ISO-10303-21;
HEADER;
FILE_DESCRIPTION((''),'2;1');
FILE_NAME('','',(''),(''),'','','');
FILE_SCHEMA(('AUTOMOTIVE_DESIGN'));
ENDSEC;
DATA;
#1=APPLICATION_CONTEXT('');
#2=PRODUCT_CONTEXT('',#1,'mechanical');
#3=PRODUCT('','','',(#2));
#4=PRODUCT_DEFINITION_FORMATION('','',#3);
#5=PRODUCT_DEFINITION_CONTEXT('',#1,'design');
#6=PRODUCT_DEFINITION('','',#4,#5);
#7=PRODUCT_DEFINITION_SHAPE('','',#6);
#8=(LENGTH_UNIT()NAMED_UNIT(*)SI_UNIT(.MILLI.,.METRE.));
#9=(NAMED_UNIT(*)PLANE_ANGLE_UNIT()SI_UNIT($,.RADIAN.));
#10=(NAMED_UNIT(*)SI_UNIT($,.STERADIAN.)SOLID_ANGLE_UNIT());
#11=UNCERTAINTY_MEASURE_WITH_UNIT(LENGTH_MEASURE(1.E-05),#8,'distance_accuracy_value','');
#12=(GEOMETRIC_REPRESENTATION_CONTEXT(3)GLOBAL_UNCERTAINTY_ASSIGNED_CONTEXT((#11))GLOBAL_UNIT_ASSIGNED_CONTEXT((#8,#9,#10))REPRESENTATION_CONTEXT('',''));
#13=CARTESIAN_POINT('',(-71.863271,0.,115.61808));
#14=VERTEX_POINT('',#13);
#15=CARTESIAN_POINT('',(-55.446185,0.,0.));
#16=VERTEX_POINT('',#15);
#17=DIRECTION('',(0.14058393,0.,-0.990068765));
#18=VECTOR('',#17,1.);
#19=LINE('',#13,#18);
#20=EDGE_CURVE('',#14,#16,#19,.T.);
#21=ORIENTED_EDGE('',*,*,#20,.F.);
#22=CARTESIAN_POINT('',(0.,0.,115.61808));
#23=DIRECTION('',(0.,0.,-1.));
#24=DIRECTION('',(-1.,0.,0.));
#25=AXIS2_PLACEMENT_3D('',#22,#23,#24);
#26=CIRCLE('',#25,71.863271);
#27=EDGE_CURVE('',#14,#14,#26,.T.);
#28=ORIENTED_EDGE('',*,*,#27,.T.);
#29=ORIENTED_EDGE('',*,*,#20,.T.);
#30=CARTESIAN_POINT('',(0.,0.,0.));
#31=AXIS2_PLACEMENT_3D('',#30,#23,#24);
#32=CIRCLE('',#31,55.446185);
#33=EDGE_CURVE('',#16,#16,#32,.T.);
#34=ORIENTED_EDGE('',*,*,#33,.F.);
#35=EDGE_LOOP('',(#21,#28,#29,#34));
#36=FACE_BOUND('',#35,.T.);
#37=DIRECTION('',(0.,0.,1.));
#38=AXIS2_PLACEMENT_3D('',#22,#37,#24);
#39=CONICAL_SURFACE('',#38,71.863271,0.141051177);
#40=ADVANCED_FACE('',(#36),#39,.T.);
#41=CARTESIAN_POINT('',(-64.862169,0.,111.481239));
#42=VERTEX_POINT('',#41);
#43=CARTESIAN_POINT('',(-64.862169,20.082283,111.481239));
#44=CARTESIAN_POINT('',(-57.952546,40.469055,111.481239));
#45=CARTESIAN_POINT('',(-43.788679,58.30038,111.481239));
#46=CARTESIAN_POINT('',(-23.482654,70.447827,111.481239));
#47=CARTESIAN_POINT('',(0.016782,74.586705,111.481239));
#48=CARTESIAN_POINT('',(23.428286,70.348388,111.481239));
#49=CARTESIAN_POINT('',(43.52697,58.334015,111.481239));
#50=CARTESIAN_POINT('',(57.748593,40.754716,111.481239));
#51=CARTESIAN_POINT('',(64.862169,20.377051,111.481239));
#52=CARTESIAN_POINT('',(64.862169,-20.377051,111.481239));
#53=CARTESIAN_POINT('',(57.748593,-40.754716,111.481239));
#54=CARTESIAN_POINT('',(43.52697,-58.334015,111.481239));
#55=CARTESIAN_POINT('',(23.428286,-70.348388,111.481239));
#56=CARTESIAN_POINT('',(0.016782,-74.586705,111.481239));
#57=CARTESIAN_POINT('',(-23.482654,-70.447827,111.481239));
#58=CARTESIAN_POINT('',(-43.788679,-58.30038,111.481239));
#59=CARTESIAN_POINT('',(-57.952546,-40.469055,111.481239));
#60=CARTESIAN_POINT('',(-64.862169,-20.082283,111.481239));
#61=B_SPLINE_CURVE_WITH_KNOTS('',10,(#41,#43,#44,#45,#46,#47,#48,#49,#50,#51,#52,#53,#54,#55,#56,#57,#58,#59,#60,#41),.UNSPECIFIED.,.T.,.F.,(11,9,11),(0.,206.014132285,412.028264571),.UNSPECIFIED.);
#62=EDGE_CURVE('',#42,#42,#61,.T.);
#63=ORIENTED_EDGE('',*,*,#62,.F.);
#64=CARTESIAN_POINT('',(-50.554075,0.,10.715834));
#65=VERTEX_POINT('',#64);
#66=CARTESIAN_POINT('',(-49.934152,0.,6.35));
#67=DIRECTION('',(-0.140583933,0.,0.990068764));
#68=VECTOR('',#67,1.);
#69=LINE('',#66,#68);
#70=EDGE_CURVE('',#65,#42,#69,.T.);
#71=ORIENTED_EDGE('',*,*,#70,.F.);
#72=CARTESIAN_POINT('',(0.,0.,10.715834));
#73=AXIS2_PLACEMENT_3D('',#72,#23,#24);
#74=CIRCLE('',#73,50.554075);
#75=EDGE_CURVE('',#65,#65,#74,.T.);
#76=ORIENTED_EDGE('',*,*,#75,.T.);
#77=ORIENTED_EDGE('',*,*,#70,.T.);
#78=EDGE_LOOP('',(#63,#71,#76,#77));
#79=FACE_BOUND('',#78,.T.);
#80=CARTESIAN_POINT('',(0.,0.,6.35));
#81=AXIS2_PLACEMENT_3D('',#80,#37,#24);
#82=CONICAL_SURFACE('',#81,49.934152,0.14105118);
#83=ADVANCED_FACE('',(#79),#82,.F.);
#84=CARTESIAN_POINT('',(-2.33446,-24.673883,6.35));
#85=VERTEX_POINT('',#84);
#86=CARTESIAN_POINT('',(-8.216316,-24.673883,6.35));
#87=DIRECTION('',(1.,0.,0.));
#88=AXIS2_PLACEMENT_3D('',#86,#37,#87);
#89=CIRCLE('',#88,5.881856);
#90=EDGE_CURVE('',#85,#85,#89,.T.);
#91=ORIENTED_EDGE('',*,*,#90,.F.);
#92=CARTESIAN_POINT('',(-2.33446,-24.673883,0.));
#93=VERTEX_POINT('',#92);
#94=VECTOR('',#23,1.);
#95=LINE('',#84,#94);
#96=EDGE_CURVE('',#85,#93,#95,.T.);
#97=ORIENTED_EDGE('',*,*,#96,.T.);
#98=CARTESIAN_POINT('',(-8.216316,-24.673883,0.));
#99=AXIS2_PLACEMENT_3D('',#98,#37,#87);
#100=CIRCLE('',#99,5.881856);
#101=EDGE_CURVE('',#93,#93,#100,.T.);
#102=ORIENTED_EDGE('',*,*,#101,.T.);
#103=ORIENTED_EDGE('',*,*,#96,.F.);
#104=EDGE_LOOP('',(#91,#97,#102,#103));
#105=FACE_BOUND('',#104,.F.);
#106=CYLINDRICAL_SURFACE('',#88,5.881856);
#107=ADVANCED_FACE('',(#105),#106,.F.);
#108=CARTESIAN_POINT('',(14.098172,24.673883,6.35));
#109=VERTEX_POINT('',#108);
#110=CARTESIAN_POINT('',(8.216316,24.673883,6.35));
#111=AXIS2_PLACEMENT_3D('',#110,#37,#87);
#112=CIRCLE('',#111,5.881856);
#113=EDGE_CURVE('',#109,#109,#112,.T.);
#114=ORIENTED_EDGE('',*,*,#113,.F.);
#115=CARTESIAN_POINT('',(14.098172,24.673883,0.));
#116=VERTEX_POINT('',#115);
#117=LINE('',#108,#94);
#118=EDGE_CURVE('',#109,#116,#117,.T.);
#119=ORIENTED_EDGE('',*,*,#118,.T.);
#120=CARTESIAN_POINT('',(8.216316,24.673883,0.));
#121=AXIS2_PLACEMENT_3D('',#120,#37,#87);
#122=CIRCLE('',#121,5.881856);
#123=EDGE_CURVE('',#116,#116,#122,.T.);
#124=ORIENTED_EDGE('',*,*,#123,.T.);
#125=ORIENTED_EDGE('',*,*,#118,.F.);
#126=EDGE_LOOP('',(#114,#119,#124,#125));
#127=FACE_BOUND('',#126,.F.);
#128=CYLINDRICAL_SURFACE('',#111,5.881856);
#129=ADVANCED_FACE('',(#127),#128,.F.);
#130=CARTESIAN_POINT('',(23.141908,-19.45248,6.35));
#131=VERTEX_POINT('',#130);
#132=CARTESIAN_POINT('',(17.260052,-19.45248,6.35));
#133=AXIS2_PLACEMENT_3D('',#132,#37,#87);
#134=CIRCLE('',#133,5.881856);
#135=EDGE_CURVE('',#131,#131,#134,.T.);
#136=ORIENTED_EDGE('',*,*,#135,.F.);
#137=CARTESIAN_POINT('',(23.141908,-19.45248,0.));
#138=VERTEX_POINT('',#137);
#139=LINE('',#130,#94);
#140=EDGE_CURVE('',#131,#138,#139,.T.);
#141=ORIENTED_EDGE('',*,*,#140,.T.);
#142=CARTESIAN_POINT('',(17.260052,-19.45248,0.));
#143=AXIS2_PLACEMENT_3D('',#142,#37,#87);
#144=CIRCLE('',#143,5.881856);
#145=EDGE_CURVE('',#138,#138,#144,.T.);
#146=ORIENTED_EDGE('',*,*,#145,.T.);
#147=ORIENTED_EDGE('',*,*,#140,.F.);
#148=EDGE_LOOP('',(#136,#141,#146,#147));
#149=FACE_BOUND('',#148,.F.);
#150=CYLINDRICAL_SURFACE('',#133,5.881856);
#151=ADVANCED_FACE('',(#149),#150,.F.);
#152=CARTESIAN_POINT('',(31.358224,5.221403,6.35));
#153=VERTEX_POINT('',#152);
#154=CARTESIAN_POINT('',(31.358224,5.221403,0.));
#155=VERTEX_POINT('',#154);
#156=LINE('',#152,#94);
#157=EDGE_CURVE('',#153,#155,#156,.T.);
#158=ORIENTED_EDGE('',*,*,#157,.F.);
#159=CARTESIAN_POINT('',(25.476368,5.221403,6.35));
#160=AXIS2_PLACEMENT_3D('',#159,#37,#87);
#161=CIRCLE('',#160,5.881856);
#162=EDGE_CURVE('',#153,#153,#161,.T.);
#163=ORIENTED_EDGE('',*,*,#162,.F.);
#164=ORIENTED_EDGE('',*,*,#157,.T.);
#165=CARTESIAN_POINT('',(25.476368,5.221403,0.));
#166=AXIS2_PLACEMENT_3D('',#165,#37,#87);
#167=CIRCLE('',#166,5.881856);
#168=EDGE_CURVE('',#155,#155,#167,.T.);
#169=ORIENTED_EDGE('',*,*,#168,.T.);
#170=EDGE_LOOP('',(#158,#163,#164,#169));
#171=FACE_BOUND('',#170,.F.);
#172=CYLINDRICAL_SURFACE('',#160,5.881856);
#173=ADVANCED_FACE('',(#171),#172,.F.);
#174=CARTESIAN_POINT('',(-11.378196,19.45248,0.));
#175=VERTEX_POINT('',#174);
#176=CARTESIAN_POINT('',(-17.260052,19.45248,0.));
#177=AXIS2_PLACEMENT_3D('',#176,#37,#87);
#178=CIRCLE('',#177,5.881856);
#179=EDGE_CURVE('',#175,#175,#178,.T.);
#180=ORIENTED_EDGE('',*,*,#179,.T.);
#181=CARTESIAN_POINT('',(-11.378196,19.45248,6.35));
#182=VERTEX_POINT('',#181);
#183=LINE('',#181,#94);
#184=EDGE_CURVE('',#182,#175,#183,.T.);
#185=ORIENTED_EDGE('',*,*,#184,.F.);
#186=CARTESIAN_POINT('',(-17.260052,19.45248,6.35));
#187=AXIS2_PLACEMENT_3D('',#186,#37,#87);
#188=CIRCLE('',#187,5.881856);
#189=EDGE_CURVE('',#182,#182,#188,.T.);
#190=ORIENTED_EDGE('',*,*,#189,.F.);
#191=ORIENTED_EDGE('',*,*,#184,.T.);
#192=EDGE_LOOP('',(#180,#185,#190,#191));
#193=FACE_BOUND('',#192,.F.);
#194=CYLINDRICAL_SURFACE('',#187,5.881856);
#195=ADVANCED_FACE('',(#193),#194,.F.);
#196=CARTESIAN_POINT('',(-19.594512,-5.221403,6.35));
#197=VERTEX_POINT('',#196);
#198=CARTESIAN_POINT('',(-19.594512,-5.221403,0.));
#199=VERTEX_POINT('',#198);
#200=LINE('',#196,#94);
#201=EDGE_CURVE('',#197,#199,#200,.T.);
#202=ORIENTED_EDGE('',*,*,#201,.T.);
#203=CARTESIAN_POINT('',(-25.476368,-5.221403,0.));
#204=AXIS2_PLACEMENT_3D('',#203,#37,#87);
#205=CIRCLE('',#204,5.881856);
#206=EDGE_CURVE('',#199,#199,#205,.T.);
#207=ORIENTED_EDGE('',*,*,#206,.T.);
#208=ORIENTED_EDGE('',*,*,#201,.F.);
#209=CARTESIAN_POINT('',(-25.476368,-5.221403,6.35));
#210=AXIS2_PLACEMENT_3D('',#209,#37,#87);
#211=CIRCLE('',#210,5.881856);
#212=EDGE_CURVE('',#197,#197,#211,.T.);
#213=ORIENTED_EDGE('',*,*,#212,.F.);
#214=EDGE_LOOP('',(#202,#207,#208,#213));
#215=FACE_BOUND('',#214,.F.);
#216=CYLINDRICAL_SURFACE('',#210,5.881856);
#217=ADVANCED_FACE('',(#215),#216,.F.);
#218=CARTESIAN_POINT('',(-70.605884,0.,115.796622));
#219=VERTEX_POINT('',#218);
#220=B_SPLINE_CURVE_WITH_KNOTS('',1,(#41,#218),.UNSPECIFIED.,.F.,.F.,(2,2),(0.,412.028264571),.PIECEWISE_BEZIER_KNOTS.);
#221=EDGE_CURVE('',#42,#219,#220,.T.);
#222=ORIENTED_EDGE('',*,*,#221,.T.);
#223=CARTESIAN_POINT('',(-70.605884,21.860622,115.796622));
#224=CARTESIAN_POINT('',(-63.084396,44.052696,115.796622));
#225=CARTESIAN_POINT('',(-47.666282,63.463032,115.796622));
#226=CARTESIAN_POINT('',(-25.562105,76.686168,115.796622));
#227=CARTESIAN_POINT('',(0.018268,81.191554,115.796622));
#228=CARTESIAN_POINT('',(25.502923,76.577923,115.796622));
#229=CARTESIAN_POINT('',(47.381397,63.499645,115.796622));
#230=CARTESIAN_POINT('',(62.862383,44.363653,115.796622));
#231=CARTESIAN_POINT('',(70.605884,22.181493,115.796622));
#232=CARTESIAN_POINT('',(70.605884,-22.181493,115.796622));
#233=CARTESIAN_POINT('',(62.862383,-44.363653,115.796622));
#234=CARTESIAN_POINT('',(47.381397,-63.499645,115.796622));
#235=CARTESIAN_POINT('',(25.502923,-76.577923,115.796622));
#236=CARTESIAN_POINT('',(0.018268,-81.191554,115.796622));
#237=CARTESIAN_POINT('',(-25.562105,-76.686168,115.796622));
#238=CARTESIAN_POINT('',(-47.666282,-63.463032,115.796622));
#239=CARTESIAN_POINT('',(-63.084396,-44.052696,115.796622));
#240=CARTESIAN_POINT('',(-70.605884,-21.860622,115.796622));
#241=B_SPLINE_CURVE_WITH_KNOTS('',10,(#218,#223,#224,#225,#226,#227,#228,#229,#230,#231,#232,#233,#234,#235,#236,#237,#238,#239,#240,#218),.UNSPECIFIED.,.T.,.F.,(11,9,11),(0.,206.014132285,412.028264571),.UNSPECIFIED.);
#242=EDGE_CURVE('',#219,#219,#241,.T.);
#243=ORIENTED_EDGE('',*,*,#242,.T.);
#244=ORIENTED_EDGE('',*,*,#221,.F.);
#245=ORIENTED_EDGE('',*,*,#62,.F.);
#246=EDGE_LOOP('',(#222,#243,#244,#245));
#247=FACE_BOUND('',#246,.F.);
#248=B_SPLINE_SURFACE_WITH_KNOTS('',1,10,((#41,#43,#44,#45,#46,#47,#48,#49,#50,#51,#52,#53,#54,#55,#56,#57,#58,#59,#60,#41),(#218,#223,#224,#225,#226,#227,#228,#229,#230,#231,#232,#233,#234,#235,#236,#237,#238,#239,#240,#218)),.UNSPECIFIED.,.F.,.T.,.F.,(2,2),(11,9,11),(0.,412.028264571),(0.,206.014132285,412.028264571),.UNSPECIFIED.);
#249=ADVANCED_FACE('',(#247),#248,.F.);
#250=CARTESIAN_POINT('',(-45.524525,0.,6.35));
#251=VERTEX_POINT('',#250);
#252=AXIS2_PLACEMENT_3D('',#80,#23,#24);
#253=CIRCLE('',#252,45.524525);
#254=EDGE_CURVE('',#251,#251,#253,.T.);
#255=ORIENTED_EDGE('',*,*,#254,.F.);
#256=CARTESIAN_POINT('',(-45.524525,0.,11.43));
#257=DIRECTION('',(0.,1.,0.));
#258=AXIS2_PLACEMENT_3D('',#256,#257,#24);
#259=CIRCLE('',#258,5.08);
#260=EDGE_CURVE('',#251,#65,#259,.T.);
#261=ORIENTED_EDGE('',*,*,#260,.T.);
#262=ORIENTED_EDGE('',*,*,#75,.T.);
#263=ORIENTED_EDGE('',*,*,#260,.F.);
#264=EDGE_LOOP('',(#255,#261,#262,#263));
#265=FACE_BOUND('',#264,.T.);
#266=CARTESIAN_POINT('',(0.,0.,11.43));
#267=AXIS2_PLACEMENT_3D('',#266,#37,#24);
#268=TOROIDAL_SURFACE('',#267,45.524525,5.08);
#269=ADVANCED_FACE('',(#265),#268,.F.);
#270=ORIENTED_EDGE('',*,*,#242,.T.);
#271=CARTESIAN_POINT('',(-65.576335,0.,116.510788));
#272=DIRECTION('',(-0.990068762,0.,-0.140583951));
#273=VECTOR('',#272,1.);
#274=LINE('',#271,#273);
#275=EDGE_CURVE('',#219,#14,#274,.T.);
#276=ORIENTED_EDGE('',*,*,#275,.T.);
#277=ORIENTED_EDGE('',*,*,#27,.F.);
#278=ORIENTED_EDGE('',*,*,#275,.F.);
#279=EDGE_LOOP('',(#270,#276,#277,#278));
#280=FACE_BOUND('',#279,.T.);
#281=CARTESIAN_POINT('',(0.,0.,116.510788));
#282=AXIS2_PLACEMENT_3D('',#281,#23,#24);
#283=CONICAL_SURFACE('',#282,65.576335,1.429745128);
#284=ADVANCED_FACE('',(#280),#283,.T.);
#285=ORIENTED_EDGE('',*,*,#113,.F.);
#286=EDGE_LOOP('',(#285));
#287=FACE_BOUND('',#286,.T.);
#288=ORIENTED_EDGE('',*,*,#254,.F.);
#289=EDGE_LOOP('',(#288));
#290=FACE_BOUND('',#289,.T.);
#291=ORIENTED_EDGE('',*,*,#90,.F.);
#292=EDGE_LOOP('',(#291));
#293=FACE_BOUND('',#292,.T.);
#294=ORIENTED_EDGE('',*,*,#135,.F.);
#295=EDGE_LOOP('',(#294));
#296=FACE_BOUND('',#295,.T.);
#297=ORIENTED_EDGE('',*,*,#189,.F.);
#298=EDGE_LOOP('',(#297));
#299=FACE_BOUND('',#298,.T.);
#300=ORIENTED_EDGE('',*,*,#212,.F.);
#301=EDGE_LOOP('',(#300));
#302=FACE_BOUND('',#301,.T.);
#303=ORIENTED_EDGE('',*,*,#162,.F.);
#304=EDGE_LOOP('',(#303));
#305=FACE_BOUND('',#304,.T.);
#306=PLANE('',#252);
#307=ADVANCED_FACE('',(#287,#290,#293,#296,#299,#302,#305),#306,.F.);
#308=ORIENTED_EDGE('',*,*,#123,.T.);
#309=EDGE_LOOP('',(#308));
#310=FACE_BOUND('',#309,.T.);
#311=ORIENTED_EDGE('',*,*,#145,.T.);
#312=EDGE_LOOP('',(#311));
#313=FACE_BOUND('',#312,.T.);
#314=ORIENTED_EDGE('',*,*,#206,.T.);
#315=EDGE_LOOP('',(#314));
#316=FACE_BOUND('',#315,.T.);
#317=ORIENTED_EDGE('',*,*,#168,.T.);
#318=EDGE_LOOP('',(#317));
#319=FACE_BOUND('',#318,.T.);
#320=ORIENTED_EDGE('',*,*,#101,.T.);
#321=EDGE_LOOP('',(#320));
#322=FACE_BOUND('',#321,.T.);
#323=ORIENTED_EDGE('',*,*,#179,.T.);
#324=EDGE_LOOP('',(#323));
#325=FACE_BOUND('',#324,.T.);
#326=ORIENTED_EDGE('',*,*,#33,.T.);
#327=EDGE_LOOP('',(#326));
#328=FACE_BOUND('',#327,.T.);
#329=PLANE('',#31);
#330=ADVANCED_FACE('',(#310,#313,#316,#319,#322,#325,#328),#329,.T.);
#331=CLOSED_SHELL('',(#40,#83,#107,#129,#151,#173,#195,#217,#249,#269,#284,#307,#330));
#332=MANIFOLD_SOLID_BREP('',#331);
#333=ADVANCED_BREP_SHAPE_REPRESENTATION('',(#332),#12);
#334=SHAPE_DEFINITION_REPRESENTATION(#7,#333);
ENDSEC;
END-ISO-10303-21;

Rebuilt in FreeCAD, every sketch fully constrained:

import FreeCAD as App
import Part
import Sketcher
Q = App.Units.Quantity


def edges_at(feature, points):
    """Names of the edges that pass closest to the given points."""
    edges = feature.Shape.Edges
    near = lambda p: min(range(len(edges)), key=lambda i: edges[i].distToShape(Part.Vertex(*p))[0])
    return sorted({f"Edge{near(p) + 1}" for p in points})

doc = App.newDocument("Part")
body = doc.addObject("PartDesign::Body", "Body")

sketch1 = doc.addObject("Sketcher::SketchObject", "Sketch")
body.addObject(sketch1)
sketch1.AttachmentSupport = (doc.XZ_Plane, [""])
sketch1.MapMode = "FlatFace"
sketch1.addGeometry([
    Part.LineSegment(App.Vector(-55.446185, 0, 0), App.Vector(0, 0, 0)),
    Part.LineSegment(App.Vector(0, 0, 0), App.Vector(0, 6.35, 0)),
    Part.LineSegment(App.Vector(0, 6.35, 0), App.Vector(-49.934152, 6.35, 0)),
    Part.LineSegment(App.Vector(-49.934152, 6.35, 0), App.Vector(-65.576335, 116.510788, 0)),
    Part.LineSegment(App.Vector(-65.576335, 116.510788, 0), App.Vector(-71.863271, 115.61808, 0)),
    Part.LineSegment(App.Vector(-71.863271, 115.61808, 0), App.Vector(-55.446185, 0, 0)),
], False)
sketch1.addConstraint([
    Sketcher.Constraint("Coincident", 0, 2, 1, 1),
    Sketcher.Constraint("Coincident", 1, 2, 2, 1),
    Sketcher.Constraint("Coincident", 2, 2, 3, 1),
    Sketcher.Constraint("Coincident", 3, 2, 4, 1),
    Sketcher.Constraint("Coincident", 4, 2, 5, 1),
    Sketcher.Constraint("Coincident", 5, 2, 0, 1),
    Sketcher.Constraint("Horizontal", 0),
    Sketcher.Constraint("Vertical", 1),
    Sketcher.Constraint("Horizontal", 2),
    Sketcher.Constraint("Coincident", 0, 2, -1, 1),
    Sketcher.Constraint("Perpendicular", 3, 4),
    Sketcher.Constraint("Perpendicular", 4, 5),
    Sketcher.Constraint("DistanceY", 1, 1, 1, 2, Q("0.25 in")),
    Sketcher.Constraint("Distance", 4, Q("0.25 in")),
    Sketcher.Constraint("DistanceX", 2, 2, 2, 1, Q("49.934152 mm")),
    Sketcher.Constraint("Distance", 5, Q("116.777828 mm")),
    Sketcher.Constraint("DistanceX", 0, 1, 0, 2, Q("55.446185 mm")),
])
revolution = doc.addObject("PartDesign::Revolution", "Revolution")
body.addObject(revolution)
revolution.Profile = sketch1
revolution.ReferenceAxis = (sketch1, ["V_Axis"])
revolution.Angle = 360
doc.recompute()

fillet = doc.addObject("PartDesign::Fillet", "Fillet")
body.addObject(fillet)
fillet.Base = (revolution, edges_at(revolution, [(49.934, 0, 6.35)]))
fillet.Radius = Q("0.2 in")
doc.recompute()

chamfer = doc.addObject("PartDesign::Chamfer", "Chamfer")
body.addObject(chamfer)
chamfer.Base = (fillet, edges_at(fillet, [(65.576, 0, 116.511)]))
chamfer.Size = Q("0.2 in")

sketch2 = doc.addObject("Sketcher::SketchObject", "Sketch001")
body.addObject(sketch2)
sketch2.AttachmentSupport = (doc.XY_Plane, [""])
sketch2.MapMode = "FlatFace"
sketch2.AttachmentOffset = App.Placement(App.Vector(0, 0, 0.25 * 25.4), App.Rotation())
sketch2.addGeometry([
    Part.Circle(App.Vector(-17.260052, 19.45248, 0), App.Vector(0, 0, 1), 5.881856),
    Part.Circle(App.Vector(-25.476368, -5.221403, 0), App.Vector(0, 0, 1), 5.881856),
    Part.Circle(App.Vector(-8.216316, -24.673883, 0), App.Vector(0, 0, 1), 5.881856),
    Part.Circle(App.Vector(17.260052, -19.45248, 0), App.Vector(0, 0, 1), 5.881856),
    Part.Circle(App.Vector(25.476368, 5.221403, 0), App.Vector(0, 0, 1), 5.881856),
    Part.Circle(App.Vector(8.216316, 24.673883, 0), App.Vector(0, 0, 1), 5.881856),
], False)
sketch2.addConstraint([
    Sketcher.Constraint("Equal", 0, 1),
    Sketcher.Constraint("Equal", 1, 2),
    Sketcher.Constraint("Equal", 2, 3),
    Sketcher.Constraint("Equal", 3, 4),
    Sketcher.Constraint("Equal", 4, 5),
    Sketcher.Constraint("Symmetric", 0, 3, 3, 3, -1, 1),
    Sketcher.Constraint("Symmetric", 1, 3, 4, 3, -1, 1),
    Sketcher.Constraint("Symmetric", 2, 3, 5, 3, -1, 1),
    Sketcher.Constraint("Diameter", 0, Q("11.763712 mm")),
    Sketcher.Constraint("DistanceY", -1, 1, 0, 3, Q("19.45248 mm")),
    Sketcher.Constraint("DistanceX", 1, 3, -1, 1, Q("25.476368 mm")),
    Sketcher.Constraint("DistanceY", 2, 3, 1, 3, Q("19.45248 mm")),
    Sketcher.Constraint("DistanceX", 2, 3, 3, 3, Q("25.476368 mm")),
    Sketcher.Constraint("DistanceX", 1, 3, 3, 3, Q("42.73642 mm")),
    Sketcher.Constraint("DistanceY", 1, 3, -1, 1, Q("5.221403 mm")),
])
pocket1 = doc.addObject("PartDesign::Pocket", "Pocket")
body.addObject(pocket1)
pocket1.Profile = sketch2
pocket1.Type = "ThroughAll"

doc.recompute()
